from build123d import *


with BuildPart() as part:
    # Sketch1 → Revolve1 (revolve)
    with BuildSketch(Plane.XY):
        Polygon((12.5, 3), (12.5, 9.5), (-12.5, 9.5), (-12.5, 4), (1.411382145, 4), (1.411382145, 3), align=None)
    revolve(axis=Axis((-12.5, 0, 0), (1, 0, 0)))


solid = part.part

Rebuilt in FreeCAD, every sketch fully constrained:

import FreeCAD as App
import Part
import Sketcher

V = App.Vector
Q = App.Units.Quantity

doc = App.newDocument("Part")
body = doc.addObject("PartDesign::Body", "Body")

# Sketch on XY plane
sketch1 = body.newObject("Sketcher::SketchObject", "Sketch")
sketch1.AttachmentSupport = (doc.getObject("XY_Plane"), [""])
sketch1.MapMode = "FlatFace"
sketch1.addGeometry([
    Part.LineSegment(V(12.5, 3, 0), V(12.5, 9.5, 0)),  # 0
    Part.LineSegment(V(12.5, 9.5, 0), V(-12.5, 9.5, 0)),  # 1
    Part.LineSegment(V(-12.5, 9.5, 0), V(-12.5, 4, 0)),  # 2
    Part.LineSegment(V(-12.5, 4, 0), V(1.411382, 4, 0)),  # 3
    Part.LineSegment(V(1.411382, 4, 0), V(1.411382, 3, 0)),  # 4
    Part.LineSegment(V(1.411382, 3, 0), V(12.5, 3, 0)),  # 5
], False)
sketch1.addConstraint([
    Sketcher.Constraint("Coincident", 0, 2, 1, 1),
    Sketcher.Constraint("Coincident", 1, 2, 2, 1),
    Sketcher.Constraint("Coincident", 2, 2, 3, 1),
    Sketcher.Constraint("Coincident", 3, 2, 4, 1),
    Sketcher.Constraint("Coincident", 4, 2, 5, 1),
    Sketcher.Constraint("Coincident", 5, 2, 0, 1),
    Sketcher.Constraint("Vertical", 0),
    Sketcher.Constraint("Horizontal", 1),
    Sketcher.Constraint("Vertical", 2),
    Sketcher.Constraint("Horizontal", 3),
    Sketcher.Constraint("Vertical", 4),
    Sketcher.Constraint("Horizontal", 5),
    Sketcher.Constraint("DistanceX", 1, 2, 1, 1, Q("25 mm")),
    Sketcher.Constraint("DistanceY", 4, 2, 4, 1, Q("1 mm")),
    Sketcher.Constraint("DistanceY", 0, 1, 0, 2, Q("6.5 mm")),
    Sketcher.Constraint("DistanceY", -1, 1, 2, 2, Q("4 mm")),
    Sketcher.Constraint("DistanceX", -1, 1, 0, 2, Q("12.5 mm")),
    Sketcher.Constraint("DistanceX", 3, 1, 3, 2, Q("13.911382 mm")),
])
revolution = body.newObject("PartDesign::Revolution", "Revolution")
revolution.Profile = sketch1
revolution.ReferenceAxis = (sketch1, ["H_Axis"])
revolution.Angle = 360

doc.recompute()
